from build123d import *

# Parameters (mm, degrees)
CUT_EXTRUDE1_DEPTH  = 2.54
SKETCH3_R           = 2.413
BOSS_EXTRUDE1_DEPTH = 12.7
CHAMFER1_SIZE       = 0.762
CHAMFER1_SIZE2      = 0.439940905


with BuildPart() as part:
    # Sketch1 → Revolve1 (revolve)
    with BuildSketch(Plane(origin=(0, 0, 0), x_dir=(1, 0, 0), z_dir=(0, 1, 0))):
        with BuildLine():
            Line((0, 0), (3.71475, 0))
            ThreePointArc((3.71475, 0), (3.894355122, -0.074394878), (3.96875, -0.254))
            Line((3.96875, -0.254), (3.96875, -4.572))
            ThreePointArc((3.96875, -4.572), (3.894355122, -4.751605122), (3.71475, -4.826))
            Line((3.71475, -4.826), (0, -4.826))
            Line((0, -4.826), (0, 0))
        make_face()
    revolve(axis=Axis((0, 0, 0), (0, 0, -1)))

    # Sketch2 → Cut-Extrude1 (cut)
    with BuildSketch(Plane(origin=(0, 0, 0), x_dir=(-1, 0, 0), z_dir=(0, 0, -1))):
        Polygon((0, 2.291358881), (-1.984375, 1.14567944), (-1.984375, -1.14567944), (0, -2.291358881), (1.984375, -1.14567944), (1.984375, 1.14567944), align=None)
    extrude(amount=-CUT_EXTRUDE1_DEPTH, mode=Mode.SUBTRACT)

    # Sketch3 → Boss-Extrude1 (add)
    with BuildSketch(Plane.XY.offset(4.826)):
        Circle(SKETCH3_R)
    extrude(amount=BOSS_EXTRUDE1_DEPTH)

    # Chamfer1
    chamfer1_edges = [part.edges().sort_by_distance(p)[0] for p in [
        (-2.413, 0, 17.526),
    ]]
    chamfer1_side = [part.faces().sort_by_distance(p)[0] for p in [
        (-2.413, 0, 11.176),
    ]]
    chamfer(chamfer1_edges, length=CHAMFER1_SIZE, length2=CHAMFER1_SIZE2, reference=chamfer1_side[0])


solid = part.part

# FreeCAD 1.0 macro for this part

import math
import FreeCAD as App
import Part
import Sketcher

V = App.Vector
Q = App.Units.Quantity


def edges_at(feature, points):
    """Names of the edges that pass closest to the given points."""
    edges = feature.Shape.Edges
    near = lambda p: min(range(len(edges)), key=lambda i: edges[i].distToShape(Part.Vertex(*p))[0])
    return sorted({f"Edge{near(p) + 1}" for p in points})


def add_polygon(sketch, points):
    """Adds a closed chain of lines whose ends are joined by coincident constraints."""
    first, n = sketch.GeometryCount, len(points)
    for a, b in zip(points, points[1:] + points[:1]):
        sketch.addGeometry(Part.LineSegment(App.Vector(*a, 0), App.Vector(*b, 0)), False)
    for i in range(n):
        sketch.addConstraint(Sketcher.Constraint("Coincident", first + i, 2, first + (i + 1) % n, 1))

doc = App.newDocument("Part")
body = doc.addObject("PartDesign::Body", "Body")

sketch1 = body.newObject("Sketcher::SketchObject", "Sketch")
sketch1.AttachmentSupport = (doc.getObject("XZ_Plane"), [""])
sketch1.MapMode = "FlatFace"
sketch1.addGeometry([
    Part.LineSegment(V(3.71, 0, 0), V(0, 0, 0)),
    Part.LineSegment(V(0, 0, 0), V(0, 4.83, 0)),
    Part.LineSegment(V(0, 4.83, 0), V(3.71, 4.83, 0)),
    Part.ArcOfCircle(Part.Circle(V(3.71, 4.57, 0), V(0, 0, 1), 0.25), math.radians(0), math.radians(90)),
    Part.LineSegment(V(3.97, 4.57, 0), V(3.97, 0.25, 0)),
    Part.ArcOfCircle(Part.Circle(V(3.71, 0.25, 0), V(0, 0, 1), 0.25), math.radians(-90), math.radians(0)),
], False)
sketch1.addConstraint([
    Sketcher.Constraint("Coincident", 0, 2, 1, 1),
    Sketcher.Constraint("Coincident", 1, 2, 2, 1),
    Sketcher.Constraint("Tangent", 2, 2, 3, 2),
    Sketcher.Constraint("Tangent", 3, 1, 4, 1),
    Sketcher.Constraint("Tangent", 4, 2, 5, 2),
    Sketcher.Constraint("Tangent", 5, 1, 0, 1),
    Sketcher.Constraint("Horizontal", 0),
    Sketcher.Constraint("Vertical", 1),
    Sketcher.Constraint("Horizontal", 2),
    Sketcher.Constraint("Vertical", 4),
    Sketcher.Constraint("Coincident", 0, 2, -1, 1),
    Sketcher.Constraint("Equal", 3, 5),
    Sketcher.Constraint("Radius", 3, Q("0.01 in")),
    Sketcher.Constraint("DistanceY", 1, 1, 1, 2, Q("0.19 in")),
    Sketcher.Constraint("DistanceX", -1, 1, 3, 1, Q("0.15625 in")),
])
revolution = body.newObject("PartDesign::Revolution", "Revolution")
revolution.Profile = sketch1
revolution.ReferenceAxis = (sketch1, ["V_Axis"])
revolution.Angle = 360

sketch2 = body.newObject("Sketcher::SketchObject", "Sketch001")
sketch2.AttachmentSupport = (doc.getObject("XY_Plane"), [""])
sketch2.MapMode = "FlatFace"
add_polygon(sketch2, [(0, 2.3), (2, 1.1), (2, -1.1), (0, -2.3), (-2, -1.1), (-2, 1.1)])
sketch2.addConstraint([
    Sketcher.Constraint("Vertical", 1),
    Sketcher.Constraint("Vertical", 4),
    Sketcher.Constraint("Symmetric", 0, 2, 3, 2, -1, 1),
    Sketcher.Constraint("Symmetric", 2, 2, 5, 2, -1, 1),
    Sketcher.Constraint("PointOnObject", 2, 2, -2),
    Sketcher.Constraint("Parallel", 2, 5),
    Sketcher.Constraint("Horizontal", 1, 2, 3, 2),
    Sketcher.Constraint("Angle", 0, Q("-30 deg")),
    Sketcher.Constraint("DistanceX", -1, 1, 0, 2, Q("0.078125 in")),
    Sketcher.Constraint("DistanceY", 1, 2, 1, 1, 2.291359),
])
pocket1 = body.newObject("PartDesign::Pocket", "Pocket")
pocket1.Profile = sketch2
pocket1.Length = Q("0.1 in")
pocket1.Reversed = True

sketch3 = body.newObject("Sketcher::SketchObject", "Sketch002")
sketch3.AttachmentSupport = (doc.getObject("XY_Plane"), [""])
sketch3.MapMode = "FlatFace"
sketch3.AttachmentOffset = App.Placement(V(0, 0, 0.19 * 25.4), App.Rotation())
sketch3.addGeometry(Part.Circle(V(0, 0, 0), V(0, 0, 1), 2.4), False)
sketch3.addConstraint([
    Sketcher.Constraint("Coincident", 0, 3, -1, 1),
    Sketcher.Constraint("Diameter", 0, Q("0.19 in")),
])
pad1 = body.newObject("PartDesign::Pad", "Pad")
pad1.Profile = sketch3
pad1.Length = Q("0.5 in")
doc.recompute()

chamfer = body.newObject("PartDesign::Chamfer", "Chamfer")
chamfer.Base = (pad1, edges_at(pad1, [(-2.413, 0, 17.526)]))
chamfer.ChamferType = "Two distances"
chamfer.Size = Q("0.03 in")
chamfer.Size2 = 0.439941

doc.recompute()
